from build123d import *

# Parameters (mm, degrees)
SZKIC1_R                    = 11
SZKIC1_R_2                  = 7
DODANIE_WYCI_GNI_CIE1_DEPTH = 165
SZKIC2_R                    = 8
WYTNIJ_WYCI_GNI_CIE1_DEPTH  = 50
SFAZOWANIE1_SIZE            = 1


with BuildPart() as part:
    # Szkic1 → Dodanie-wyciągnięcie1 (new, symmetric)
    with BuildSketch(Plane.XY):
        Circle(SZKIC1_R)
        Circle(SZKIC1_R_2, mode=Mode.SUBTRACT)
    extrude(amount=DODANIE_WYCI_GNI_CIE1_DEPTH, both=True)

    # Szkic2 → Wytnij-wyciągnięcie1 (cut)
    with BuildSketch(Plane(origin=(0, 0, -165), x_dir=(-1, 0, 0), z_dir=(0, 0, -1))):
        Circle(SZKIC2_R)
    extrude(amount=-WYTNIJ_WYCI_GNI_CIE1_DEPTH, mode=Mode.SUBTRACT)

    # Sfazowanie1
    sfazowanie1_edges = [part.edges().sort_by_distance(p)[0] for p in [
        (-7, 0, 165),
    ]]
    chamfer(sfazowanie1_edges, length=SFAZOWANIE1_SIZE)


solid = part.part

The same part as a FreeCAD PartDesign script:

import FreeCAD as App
import Part
import Sketcher
from FreeCAD import Vector
Q = App.Units.Quantity


def edges_at(feature, points):
    """Names of the edges that pass closest to the given points."""
    edges = feature.Shape.Edges
    near = lambda p: min(range(len(edges)), key=lambda i: edges[i].distToShape(Part.Vertex(*p))[0])
    return sorted({f"Edge{near(p) + 1}" for p in points})

doc = App.newDocument("Part")
body = doc.addObject("PartDesign::Body", "Body")

# Sketch on XY plane
sketch1 = doc.addObject("Sketcher::SketchObject", "Sketch")
body.addObject(sketch1)
sketch1.AttachmentSupport = (doc.XY_Plane, [""])
sketch1.MapMode = "FlatFace"
sketch1.addGeometry([
    Part.Circle(Vector(0, 0, 0), Vector(0, 0, 1), 11),
    Part.Circle(Vector(0, 0, 0), Vector(0, 0, 1), 7),
], False)
sketch1.addConstraint([
    Sketcher.Constraint("Coincident", 0, 3, -1, 1),
    Sketcher.Constraint("Coincident", 1, 3, -1, 1),
    Sketcher.Constraint("Diameter", 0, Q("22 mm")),
    Sketcher.Constraint("Diameter", 1, Q("14 mm")),
])
pad1 = doc.addObject("PartDesign::Pad", "Pad")
body.addObject(pad1)
pad1.Profile = sketch1
pad1.Length = 330
pad1.Midplane = True

# Sketch on XY plane
sketch2 = doc.addObject("Sketcher::SketchObject", "Sketch001")
body.addObject(sketch2)
sketch2.AttachmentSupport = (doc.XY_Plane, [""])
sketch2.MapMode = "FlatFace"
sketch2.AttachmentOffset = App.Placement(Vector(0, 0, -165), App.Rotation())
sketch2.addGeometry(Part.Circle(Vector(0, 0, 0), Vector(0, 0, 1), 8), False)
sketch2.addConstraint([
    Sketcher.Constraint("Coincident", 0, 3, -1, 1),
    Sketcher.Constraint("Diameter", 0, Q("16 mm")),
])
pocket1 = doc.addObject("PartDesign::Pocket", "Pocket")
body.addObject(pocket1)
pocket1.Profile = sketch2
pocket1.Length = 50
pocket1.Reversed = True
doc.recompute()

chamfer = doc.addObject("PartDesign::Chamfer", "Chamfer")
body.addObject(chamfer)
chamfer.Base = (pocket1, edges_at(pocket1, [(-7, 0, 165)]))
chamfer.Size = 1

doc.recompute()
